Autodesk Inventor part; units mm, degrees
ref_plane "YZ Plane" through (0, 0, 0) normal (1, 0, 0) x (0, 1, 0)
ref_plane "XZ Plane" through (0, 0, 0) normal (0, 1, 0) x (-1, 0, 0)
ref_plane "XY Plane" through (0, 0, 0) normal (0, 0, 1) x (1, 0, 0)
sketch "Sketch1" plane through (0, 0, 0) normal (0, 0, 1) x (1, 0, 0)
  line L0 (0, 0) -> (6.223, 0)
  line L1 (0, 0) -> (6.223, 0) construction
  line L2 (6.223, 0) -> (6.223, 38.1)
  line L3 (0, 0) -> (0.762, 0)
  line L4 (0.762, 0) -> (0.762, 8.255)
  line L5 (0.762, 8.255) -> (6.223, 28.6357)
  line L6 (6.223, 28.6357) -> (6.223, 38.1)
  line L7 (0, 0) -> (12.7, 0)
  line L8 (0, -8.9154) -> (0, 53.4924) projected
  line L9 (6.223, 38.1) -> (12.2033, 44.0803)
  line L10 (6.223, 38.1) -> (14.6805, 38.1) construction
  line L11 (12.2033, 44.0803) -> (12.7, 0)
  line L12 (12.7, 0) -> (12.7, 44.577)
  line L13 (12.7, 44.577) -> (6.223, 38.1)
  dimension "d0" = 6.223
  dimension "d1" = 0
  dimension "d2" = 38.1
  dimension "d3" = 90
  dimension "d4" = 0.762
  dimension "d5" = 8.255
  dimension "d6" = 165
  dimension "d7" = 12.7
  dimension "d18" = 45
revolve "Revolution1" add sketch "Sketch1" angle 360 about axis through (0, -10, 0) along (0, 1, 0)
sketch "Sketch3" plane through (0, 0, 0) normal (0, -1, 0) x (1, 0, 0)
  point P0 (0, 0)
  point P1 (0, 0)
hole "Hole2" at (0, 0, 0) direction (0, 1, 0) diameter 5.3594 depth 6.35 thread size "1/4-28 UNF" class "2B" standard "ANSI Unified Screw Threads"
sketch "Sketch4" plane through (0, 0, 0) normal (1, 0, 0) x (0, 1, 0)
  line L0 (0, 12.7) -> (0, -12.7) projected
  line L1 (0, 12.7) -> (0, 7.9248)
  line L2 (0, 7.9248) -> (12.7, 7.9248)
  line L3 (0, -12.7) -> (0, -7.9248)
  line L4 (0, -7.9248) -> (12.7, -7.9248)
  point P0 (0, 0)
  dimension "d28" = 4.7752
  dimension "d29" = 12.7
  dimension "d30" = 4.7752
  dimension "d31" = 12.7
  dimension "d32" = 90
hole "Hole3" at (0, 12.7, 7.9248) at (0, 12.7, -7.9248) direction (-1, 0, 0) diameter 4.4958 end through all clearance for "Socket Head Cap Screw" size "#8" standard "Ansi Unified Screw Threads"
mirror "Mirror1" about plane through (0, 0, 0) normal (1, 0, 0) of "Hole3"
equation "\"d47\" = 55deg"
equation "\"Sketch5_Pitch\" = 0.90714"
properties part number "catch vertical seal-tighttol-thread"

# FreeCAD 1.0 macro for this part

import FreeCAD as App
import Part
import Sketcher
Q = App.Units.Quantity

doc = App.newDocument("Part")
body = doc.addObject("PartDesign::Body", "Body")

# Sketch on XY plane
sketch1 = doc.addObject("Sketcher::SketchObject", "Sketch")
body.addObject(sketch1)
sketch1.AttachmentSupport = (doc.XY_Plane, [""])
sketch1.MapMode = "FlatFace"
sketch1.addGeometry([
    Part.LineSegment(App.Vector(1, 8, 0), App.Vector(1, 0, 0)),  # 0
    Part.LineSegment(App.Vector(1, 0, 0), App.Vector(13, 0, 0)),  # 1
    Part.LineSegment(App.Vector(13, 0, 0), App.Vector(13, 45, 0)),  # 2
    Part.LineSegment(App.Vector(13, 45, 0), App.Vector(6, 38, 0)),  # 3
    Part.LineSegment(App.Vector(6, 38, 0), App.Vector(6, 29, 0)),  # 4
    Part.LineSegment(App.Vector(6, 29, 0), App.Vector(1, 8, 0)),  # 5
], False)
sketch1.addConstraint([
    Sketcher.Constraint("Coincident", 0, 2, 1, 1),
    Sketcher.Constraint("Coincident", 1, 2, 2, 1),
    Sketcher.Constraint("Coincident", 2, 2, 3, 1),
    Sketcher.Constraint("Coincident", 3, 2, 4, 1),
    Sketcher.Constraint("Coincident", 4, 2, 5, 1),
    Sketcher.Constraint("Coincident", 5, 2, 0, 1),
    Sketcher.Constraint("Vertical", 0),
    Sketcher.Constraint("Horizontal", 1),
    Sketcher.Constraint("Vertical", 2),
    Sketcher.Constraint("Vertical", 4),
    Sketcher.Constraint("PointOnObject", 0, 2, -1),
    Sketcher.Constraint("DistanceX", -1, 1, 1, 2, Q("0.5 in")),
    Sketcher.Constraint("DistanceY", -1, 1, 3, 2, Q("1.5 in")),
    Sketcher.Constraint("DistanceY", 0, 2, 0, 1, Q("0.325 in")),
    Sketcher.Constraint("DistanceX", -1, 1, 0, 2, Q("0.03 in")),
    Sketcher.Constraint("DistanceX", -1, 1, 3, 2, Q("0.245 in")),
    Sketcher.Constraint("Angle", 3, Q("-135 deg")),
    Sketcher.Constraint("Angle", 5, Q("-105 deg")),
])
revolution = doc.addObject("PartDesign::Revolution", "Revolution")
body.addObject(revolution)
revolution.Profile = sketch1
revolution.ReferenceAxis = (sketch1, ["V_Axis"])
revolution.Angle = 360

# Sketch on XZ plane
sketch2 = doc.addObject("Sketcher::SketchObject", "Sketch001")
body.addObject(sketch2)
sketch2.AttachmentSupport = (doc.XZ_Plane, [""])
sketch2.MapMode = "FlatFace"
sketch2.addGeometry(Part.Circle(App.Vector(0, 0, 0), App.Vector(0, 0, 1), 2.7), False)
sketch2.addConstraint([
    Sketcher.Constraint("Coincident", 0, 3, -1, 1),
    Sketcher.Constraint("Diameter", 0, Q("0.211 in")),
])
doc.recompute()
hole = doc.addObject("PartDesign::Hole", "Hole")
body.addObject(hole)
hole.Profile = sketch2
hole.ThreadType = "None"
hole.Diameter = Q("0.211 in")
hole.DepthType = "Dimension"
hole.Depth = Q("0.25 in")
hole.DrillPoint = "Flat"

# Sketch on YZ plane
sketch3 = doc.addObject("Sketcher::SketchObject", "Sketch002")
body.addObject(sketch3)
sketch3.AttachmentSupport = (doc.YZ_Plane, [""])
sketch3.MapMode = "FlatFace"
sketch3.addGeometry([
    Part.Circle(App.Vector(12.7, 7.9, 0), App.Vector(0, 0, 1), 2.2),
    Part.Circle(App.Vector(12.7, -7.9, 0), App.Vector(0, 0, 1), 2.2),
], False)
sketch3.addConstraint([
    Sketcher.Constraint("Equal", 0, 1),
    Sketcher.Constraint("Symmetric", 0, 3, 1, 3, -1),
    Sketcher.Constraint("Diameter", 0, Q("0.177 in")),
    Sketcher.Constraint("DistanceX", -1, 1, 0, 3, Q("0.5 in")),
    Sketcher.Constraint("DistanceY", -1, 1, 0, 3, Q("0.312 in")),
])
doc.recompute()
hole2 = doc.addObject("PartDesign::Hole", "Hole001")
body.addObject(hole2)
hole2.Profile = sketch3
hole2.ThreadType = "None"
hole2.Diameter = Q("0.177 in")
hole2.DepthType = "ThroughAll"
doc.recompute()

mirrored = doc.addObject("PartDesign::Mirrored", "Mirrored")
body.addObject(mirrored)
mirrored.Originals = [hole2]
mirrored.MirrorPlane = (doc.YZ_Plane, [""])
body.Tip = mirrored

doc.recompute()
